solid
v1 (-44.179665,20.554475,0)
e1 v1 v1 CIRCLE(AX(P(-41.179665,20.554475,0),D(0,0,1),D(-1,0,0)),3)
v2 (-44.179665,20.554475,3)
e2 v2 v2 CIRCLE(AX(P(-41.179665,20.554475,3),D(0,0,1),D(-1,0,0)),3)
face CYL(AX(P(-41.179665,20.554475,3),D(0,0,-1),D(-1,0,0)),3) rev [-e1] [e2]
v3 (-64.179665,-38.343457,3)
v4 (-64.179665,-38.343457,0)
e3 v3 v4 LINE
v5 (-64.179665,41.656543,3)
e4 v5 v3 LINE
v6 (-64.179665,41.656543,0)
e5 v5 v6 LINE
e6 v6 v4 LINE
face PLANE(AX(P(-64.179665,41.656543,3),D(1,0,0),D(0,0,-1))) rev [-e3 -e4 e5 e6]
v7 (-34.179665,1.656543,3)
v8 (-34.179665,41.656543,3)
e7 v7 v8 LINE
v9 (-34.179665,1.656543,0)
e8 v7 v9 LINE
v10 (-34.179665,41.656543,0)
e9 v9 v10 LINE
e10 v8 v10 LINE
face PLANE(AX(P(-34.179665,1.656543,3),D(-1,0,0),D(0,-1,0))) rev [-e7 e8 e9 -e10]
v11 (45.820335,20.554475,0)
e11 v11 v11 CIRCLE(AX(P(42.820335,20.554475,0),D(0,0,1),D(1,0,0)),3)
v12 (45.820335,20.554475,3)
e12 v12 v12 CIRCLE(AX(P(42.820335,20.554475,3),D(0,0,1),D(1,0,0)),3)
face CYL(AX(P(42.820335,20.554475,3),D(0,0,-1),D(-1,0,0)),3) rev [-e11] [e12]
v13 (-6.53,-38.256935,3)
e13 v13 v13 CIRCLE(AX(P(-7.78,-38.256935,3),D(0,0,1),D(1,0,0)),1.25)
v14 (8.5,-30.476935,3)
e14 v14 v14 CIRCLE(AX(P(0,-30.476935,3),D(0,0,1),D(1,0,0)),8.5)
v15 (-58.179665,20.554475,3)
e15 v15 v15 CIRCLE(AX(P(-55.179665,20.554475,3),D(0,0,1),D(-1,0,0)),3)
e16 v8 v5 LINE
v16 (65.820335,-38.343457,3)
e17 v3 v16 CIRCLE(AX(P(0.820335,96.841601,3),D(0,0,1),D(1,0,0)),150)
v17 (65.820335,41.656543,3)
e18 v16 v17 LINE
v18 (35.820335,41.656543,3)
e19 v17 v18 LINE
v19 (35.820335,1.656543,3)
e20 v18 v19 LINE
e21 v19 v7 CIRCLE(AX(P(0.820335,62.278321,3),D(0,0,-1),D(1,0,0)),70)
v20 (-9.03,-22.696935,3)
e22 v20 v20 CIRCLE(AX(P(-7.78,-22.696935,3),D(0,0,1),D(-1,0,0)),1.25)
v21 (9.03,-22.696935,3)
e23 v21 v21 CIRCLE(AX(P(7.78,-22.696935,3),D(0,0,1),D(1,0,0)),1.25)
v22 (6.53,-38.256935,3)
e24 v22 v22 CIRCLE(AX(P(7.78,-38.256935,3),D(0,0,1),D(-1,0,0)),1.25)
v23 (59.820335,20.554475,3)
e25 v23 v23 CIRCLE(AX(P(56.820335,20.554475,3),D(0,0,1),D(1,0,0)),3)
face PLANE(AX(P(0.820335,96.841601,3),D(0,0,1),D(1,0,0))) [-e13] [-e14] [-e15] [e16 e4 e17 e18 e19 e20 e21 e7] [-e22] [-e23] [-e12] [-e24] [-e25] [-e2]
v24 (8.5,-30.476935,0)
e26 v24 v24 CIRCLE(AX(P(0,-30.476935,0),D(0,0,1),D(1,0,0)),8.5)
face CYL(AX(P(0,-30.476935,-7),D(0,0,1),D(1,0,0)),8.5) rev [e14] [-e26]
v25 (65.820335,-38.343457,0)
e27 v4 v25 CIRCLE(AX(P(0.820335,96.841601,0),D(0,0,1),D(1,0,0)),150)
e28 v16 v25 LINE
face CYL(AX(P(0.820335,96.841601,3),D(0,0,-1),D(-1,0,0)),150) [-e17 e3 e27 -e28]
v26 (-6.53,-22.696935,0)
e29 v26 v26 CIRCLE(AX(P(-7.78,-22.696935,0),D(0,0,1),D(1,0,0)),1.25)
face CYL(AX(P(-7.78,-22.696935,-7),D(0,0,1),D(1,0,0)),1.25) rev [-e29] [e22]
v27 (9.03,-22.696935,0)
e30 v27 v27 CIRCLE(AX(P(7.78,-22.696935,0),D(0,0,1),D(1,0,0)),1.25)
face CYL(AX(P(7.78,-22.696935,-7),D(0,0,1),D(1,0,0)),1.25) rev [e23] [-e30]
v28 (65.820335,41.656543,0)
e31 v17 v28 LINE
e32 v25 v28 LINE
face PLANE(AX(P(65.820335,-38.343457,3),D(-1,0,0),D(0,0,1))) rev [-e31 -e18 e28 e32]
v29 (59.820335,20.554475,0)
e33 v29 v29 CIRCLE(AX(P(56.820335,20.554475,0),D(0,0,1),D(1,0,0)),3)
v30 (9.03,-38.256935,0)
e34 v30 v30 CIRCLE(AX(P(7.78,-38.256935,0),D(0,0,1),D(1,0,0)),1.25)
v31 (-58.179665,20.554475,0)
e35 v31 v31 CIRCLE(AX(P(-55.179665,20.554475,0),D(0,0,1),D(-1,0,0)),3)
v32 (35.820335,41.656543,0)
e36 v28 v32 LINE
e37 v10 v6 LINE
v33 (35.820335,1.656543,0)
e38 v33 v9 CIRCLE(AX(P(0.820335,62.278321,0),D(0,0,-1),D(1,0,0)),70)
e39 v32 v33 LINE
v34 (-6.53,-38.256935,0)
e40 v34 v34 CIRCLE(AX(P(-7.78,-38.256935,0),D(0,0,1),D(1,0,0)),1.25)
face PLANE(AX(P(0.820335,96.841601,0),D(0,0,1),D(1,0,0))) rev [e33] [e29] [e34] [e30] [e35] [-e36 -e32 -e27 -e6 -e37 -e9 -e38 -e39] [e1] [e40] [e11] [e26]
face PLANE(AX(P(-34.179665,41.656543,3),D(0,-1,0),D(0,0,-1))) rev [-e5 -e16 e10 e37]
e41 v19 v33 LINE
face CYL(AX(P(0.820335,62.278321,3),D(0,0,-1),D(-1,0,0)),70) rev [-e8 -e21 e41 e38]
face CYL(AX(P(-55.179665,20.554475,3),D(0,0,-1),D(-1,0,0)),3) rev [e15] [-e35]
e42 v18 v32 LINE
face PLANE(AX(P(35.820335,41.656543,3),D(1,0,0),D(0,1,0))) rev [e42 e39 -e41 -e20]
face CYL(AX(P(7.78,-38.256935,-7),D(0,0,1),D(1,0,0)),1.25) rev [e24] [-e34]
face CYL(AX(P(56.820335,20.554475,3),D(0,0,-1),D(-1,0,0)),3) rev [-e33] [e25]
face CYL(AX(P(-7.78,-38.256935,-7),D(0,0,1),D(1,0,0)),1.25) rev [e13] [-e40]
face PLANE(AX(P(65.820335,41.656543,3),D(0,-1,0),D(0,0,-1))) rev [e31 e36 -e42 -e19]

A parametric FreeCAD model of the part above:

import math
import FreeCAD as App
import Part
import Sketcher

V = App.Vector

doc = App.newDocument("Part")
body = doc.addObject("PartDesign::Body", "Body")

sketch1 = body.newObject("Sketcher::SketchObject", "Sketch")
sketch1.AttachmentSupport = (doc.getObject("XY_Plane"), [""])
sketch1.MapMode = "FlatFace"
sketch1.addGeometry(Part.LineSegment(V(-34.179665, 1.656543, 0), V(-34.179665, 41.656543, 0)), False)
sketch1.addGeometry(Part.LineSegment(V(-34.179665, 41.656543, 0), V(-64.179665, 41.656543, 0)), False)
sketch1.addGeometry(Part.LineSegment(V(-64.179665, 41.656543, 0), V(-64.179665, -38.343457, 0)), False)
sketch1.addGeometry(Part.ArcOfCircle(Part.Circle(V(0.820335, 96.841601, 0), V(0, 0, 1), 150), math.radians(-115.679289), math.radians(-64.320711)), False)
sketch1.addGeometry(Part.LineSegment(V(65.820335, -38.343457, 0), V(65.820335, 41.656543, 0)), False)
sketch1.addGeometry(Part.LineSegment(V(65.820335, 41.656543, 0), V(35.820335, 41.656543, 0)), False)
sketch1.addGeometry(Part.LineSegment(V(35.820335, 41.656543, 0), V(35.820335, 1.656543, 0)), False)
sketch1.addGeometry(Part.ArcOfCircle(Part.Circle(V(0.820335, 62.278321, 0), V(0, 0, 1), 70), math.radians(-120), math.radians(-60)), False)
sketch1.addGeometry(Part.Circle(V(-55.179665, 20.554475, 0), V(0, 0, 1), 3), False)
sketch1.addGeometry(Part.Circle(V(-41.179665, 20.554475, 0), V(0, 0, 1), 3), False)
sketch1.addGeometry(Part.Circle(V(42.820335, 20.554475, 0), V(0, 0, 1), 3), False)
sketch1.addGeometry(Part.Circle(V(56.820335, 20.554475, 0), V(0, 0, 1), 3), False)
sketch1.addConstraint(Sketcher.Constraint("Coincident", 0, 2, 1, 1))
sketch1.addConstraint(Sketcher.Constraint("Coincident", 1, 2, 2, 1))
sketch1.addConstraint(Sketcher.Constraint("Coincident", 2, 2, 3, 1))
sketch1.addConstraint(Sketcher.Constraint("Coincident", 3, 2, 4, 1))
sketch1.addConstraint(Sketcher.Constraint("Coincident", 4, 2, 5, 1))
sketch1.addConstraint(Sketcher.Constraint("Coincident", 5, 2, 6, 1))
sketch1.addConstraint(Sketcher.Constraint("Coincident", 6, 2, 7, 2))
sketch1.addConstraint(Sketcher.Constraint("Coincident", 7, 1, 0, 1))
sketch1.addConstraint(Sketcher.Constraint("Vertical", 0))
sketch1.addConstraint(Sketcher.Constraint("Horizontal", 1))
sketch1.addConstraint(Sketcher.Constraint("Vertical", 2))
sketch1.addConstraint(Sketcher.Constraint("Vertical", 4))
sketch1.addConstraint(Sketcher.Constraint("Horizontal", 5))
sketch1.addConstraint(Sketcher.Constraint("Vertical", 6))
sketch1.addConstraint(Sketcher.Constraint("Equal", 8, 9))
sketch1.addConstraint(Sketcher.Constraint("Equal", 9, 10))
sketch1.addConstraint(Sketcher.Constraint("Equal", 10, 11))
sketch1.addConstraint(Sketcher.Constraint("Horizontal", 8, 3, 9, 3))
sketch1.addConstraint(Sketcher.Constraint("Horizontal", 9, 3, 10, 3))
sketch1.addConstraint(Sketcher.Constraint("Horizontal", 10, 3, 11, 3))
sketch1.addConstraint(Sketcher.Constraint("Horizontal", 2, 2, 3, 2))
sketch1.addConstraint(Sketcher.Constraint("Horizontal", 1, 2, 4, 2))
sketch1.addConstraint(Sketcher.Constraint("Horizontal", 6, 2, 7, 1))
sketch1.addConstraint(Sketcher.Constraint("Vertical", 3, 3, 7, 3))
sketch1.addConstraint(Sketcher.Constraint("Diameter", 8, 6.0))
sketch1.addConstraint(Sketcher.Constraint("Radius", 3, 150.0))
sketch1.addConstraint(Sketcher.Constraint("Radius", 7, 70.0))
sketch1.addConstraint(Sketcher.Constraint("DistanceX", 1, 2, 1, 1, 30.0))
sketch1.addConstraint(Sketcher.Constraint("DistanceY", 0, 1, 0, 2, 40.0))
sketch1.addConstraint(Sketcher.Constraint("DistanceY", 2, 2, 2, 1, 80.0))
sketch1.addConstraint(Sketcher.Constraint("DistanceX", 8, 3, 7, 3, 56.0))
sketch1.addConstraint(Sketcher.Constraint("DistanceX", 8, 3, 9, 3, 14.0))
sketch1.addConstraint(Sketcher.Constraint("DistanceX", 7, 3, 10, 3, 42.0))
sketch1.addConstraint(Sketcher.Constraint("DistanceX", 10, 3, 11, 3, 14.0))
sketch1.addConstraint(Sketcher.Constraint("DistanceX", 9, 3, 0, 2, 7.0))
sketch1.addConstraint(Sketcher.Constraint("DistanceY", -1, 1, 3, 3, 96.841601))
sketch1.addConstraint(Sketcher.Constraint("DistanceY", 9, 3, 0, 2, 21.102068))
sketch1.addConstraint(Sketcher.Constraint("DistanceX", -1, 1, 3, 3, 0.820335))
pad1 = body.newObject("PartDesign::Pad", "Pad")
pad1.Profile = sketch1
pad1.Length = 3

sketch2 = body.newObject("Sketcher::SketchObject", "Sketch001")
sketch2.AttachmentSupport = (doc.getObject("XY_Plane"), [""])
sketch2.MapMode = "FlatFace"
sketch2.AttachmentOffset = App.Placement(V(0, 0, 3), App.Rotation())
sketch2.addGeometry(Part.Circle(V(7.78, -22.696935, 0), V(0, 0, 1), 1.25), False)
sketch2.addGeometry(Part.Circle(V(7.78, -38.256935, 0), V(0, 0, 1), 1.25), False)
sketch2.addGeometry(Part.Circle(V(-7.78, -38.256935, 0), V(0, 0, 1), 1.25), False)
sketch2.addGeometry(Part.Circle(V(-7.78, -22.696935, 0), V(0, 0, 1), 1.25), False)
sketch2.addGeometry(Part.Circle(V(0, -30.476935, 0), V(0, 0, 1), 8.5), False)
sketch2.addConstraint(Sketcher.Constraint("Equal", 0, 1))
sketch2.addConstraint(Sketcher.Constraint("Equal", 1, 2))
sketch2.addConstraint(Sketcher.Constraint("Equal", 2, 3))
sketch2.addConstraint(Sketcher.Constraint("Symmetric", 1, 3, 2, 3, -2))
sketch2.addConstraint(Sketcher.Constraint("Symmetric", 0, 3, 3, 3, -2))
sketch2.addConstraint(Sketcher.Constraint("PointOnObject", 4, 3, -2))
sketch2.addConstraint(Sketcher.Constraint("Vertical", 0, 3, 1, 3))
sketch2.addConstraint(Sketcher.Constraint("Diameter", 4, 17.0))
sketch2.addConstraint(Sketcher.Constraint("Diameter", 0, 2.5))
sketch2.addConstraint(Sketcher.Constraint("DistanceX", -1, 1, 0, 3, 7.78))
sketch2.addConstraint(Sketcher.Constraint("DistanceY", 1, 3, 0, 3, 15.56))
sketch2.addConstraint(Sketcher.Constraint("DistanceY", 4, 3, 0, 3, 7.78))
sketch2.addConstraint(Sketcher.Constraint("DistanceY", 0, 3, -1, 1, 22.696935))
pocket1 = body.newObject("PartDesign::Pocket", "Pocket")
pocket1.Profile = sketch2
pocket1.Length = 10

doc.recompute()
